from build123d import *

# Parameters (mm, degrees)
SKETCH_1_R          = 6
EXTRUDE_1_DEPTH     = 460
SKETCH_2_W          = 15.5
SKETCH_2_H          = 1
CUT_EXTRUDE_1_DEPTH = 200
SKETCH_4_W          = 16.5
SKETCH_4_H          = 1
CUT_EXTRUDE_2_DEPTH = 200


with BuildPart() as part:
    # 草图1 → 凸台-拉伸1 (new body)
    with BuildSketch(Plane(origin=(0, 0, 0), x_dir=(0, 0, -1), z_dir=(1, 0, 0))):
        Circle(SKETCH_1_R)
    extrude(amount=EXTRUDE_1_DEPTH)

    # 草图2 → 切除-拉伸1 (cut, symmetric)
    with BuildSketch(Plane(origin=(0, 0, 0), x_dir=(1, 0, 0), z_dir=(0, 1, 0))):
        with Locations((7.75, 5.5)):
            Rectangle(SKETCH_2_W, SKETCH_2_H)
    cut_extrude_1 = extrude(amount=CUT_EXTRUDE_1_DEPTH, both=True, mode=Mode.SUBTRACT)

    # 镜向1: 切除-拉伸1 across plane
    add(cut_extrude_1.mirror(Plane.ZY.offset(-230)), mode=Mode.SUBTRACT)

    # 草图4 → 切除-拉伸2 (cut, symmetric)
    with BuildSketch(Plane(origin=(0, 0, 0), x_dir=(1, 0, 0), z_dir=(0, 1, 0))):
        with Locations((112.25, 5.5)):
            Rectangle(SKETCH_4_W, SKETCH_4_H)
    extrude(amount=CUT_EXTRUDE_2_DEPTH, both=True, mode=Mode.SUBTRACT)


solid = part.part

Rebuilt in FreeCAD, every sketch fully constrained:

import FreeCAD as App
import Part
import Sketcher

V = App.Vector
Q = App.Units.Quantity

doc = App.newDocument("Part")
body = doc.addObject("PartDesign::Body", "Body")

sketch1 = body.newObject("Sketcher::SketchObject", "Sketch")
sketch1.AttachmentSupport = (doc.getObject("YZ_Plane"), [""])
sketch1.MapMode = "FlatFace"
sketch1.addGeometry(Part.Circle(V(0, 0, 0), V(0, 0, 1), 6), False)
sketch1.addConstraint(Sketcher.Constraint("Coincident", 0, 3, -1, 1))
sketch1.addConstraint(Sketcher.Constraint("Diameter", 0, Q("12 mm")))
pad1 = body.newObject("PartDesign::Pad", "Pad")
pad1.Profile = sketch1
pad1.Length = 460

sketch2 = body.newObject("Sketcher::SketchObject", "Sketch001")
sketch2.AttachmentSupport = (doc.getObject("XZ_Plane"), [""])
sketch2.MapMode = "FlatFace"
sketch2.addGeometry(Part.LineSegment(V(0, -6, 0), V(0, -5, 0)), False)
sketch2.addGeometry(Part.LineSegment(V(0, -5, 0), V(15.5, -5, 0)), False)
sketch2.addGeometry(Part.LineSegment(V(15.5, -5, 0), V(15.5, -6, 0)), False)
sketch2.addGeometry(Part.LineSegment(V(15.5, -6, 0), V(0, -6, 0)), False)
sketch2.addConstraint(Sketcher.Constraint("Coincident", 0, 2, 1, 1))
sketch2.addConstraint(Sketcher.Constraint("Coincident", 1, 2, 2, 1))
sketch2.addConstraint(Sketcher.Constraint("Coincident", 2, 2, 3, 1))
sketch2.addConstraint(Sketcher.Constraint("Coincident", 3, 2, 0, 1))
sketch2.addConstraint(Sketcher.Constraint("Vertical", 0))
sketch2.addConstraint(Sketcher.Constraint("Horizontal", 1))
sketch2.addConstraint(Sketcher.Constraint("Vertical", 2))
sketch2.addConstraint(Sketcher.Constraint("Horizontal", 3))
sketch2.addConstraint(Sketcher.Constraint("PointOnObject", 0, 2, -2))
sketch2.addConstraint(Sketcher.Constraint("DistanceY", 0, 1, 0, 2, Q("1 mm")))
sketch2.addConstraint(Sketcher.Constraint("DistanceX", 1, 1, 1, 2, Q("15.5 mm")))
sketch2.addConstraint(Sketcher.Constraint("DistanceY", 0, 2, -1, 1, Q("5 mm")))
pocket1 = body.newObject("PartDesign::Pocket", "Pocket")
pocket1.Profile = sketch2
pocket1.Length = 400
pocket1.Midplane = True
doc.recompute()

datumplane = body.newObject("PartDesign::Plane", "DatumPlane")
datumplane.AttachmentSupport = (doc.getObject("YZ_Plane"), [""])
datumplane.MapMode = "FlatFace"
datumplane.AttachmentOffset = App.Placement(V(0, 0, 230), App.Rotation())
mirrored = body.newObject("PartDesign::Mirrored", "Mirrored")
mirrored.Originals = [pocket1]
mirrored.MirrorPlane = (datumplane, [""])
body.Tip = mirrored

sketch3 = body.newObject("Sketcher::SketchObject", "Sketch002")
sketch3.AttachmentSupport = (doc.getObject("XZ_Plane"), [""])
sketch3.MapMode = "FlatFace"
sketch3.addGeometry(Part.LineSegment(V(104, -6, 0), V(104, -5, 0)), False)
sketch3.addGeometry(Part.LineSegment(V(104, -5, 0), V(120.5, -5, 0)), False)
sketch3.addGeometry(Part.LineSegment(V(120.5, -5, 0), V(120.5, -6, 0)), False)
sketch3.addGeometry(Part.LineSegment(V(120.5, -6, 0), V(104, -6, 0)), False)
sketch3.addConstraint(Sketcher.Constraint("Coincident", 0, 2, 1, 1))
sketch3.addConstraint(Sketcher.Constraint("Coincident", 1, 2, 2, 1))
sketch3.addConstraint(Sketcher.Constraint("Coincident", 2, 2, 3, 1))
sketch3.addConstraint(Sketcher.Constraint("Coincident", 3, 2, 0, 1))
sketch3.addConstraint(Sketcher.Constraint("Vertical", 0))
sketch3.addConstraint(Sketcher.Constraint("Horizontal", 1))
sketch3.addConstraint(Sketcher.Constraint("Vertical", 2))
sketch3.addConstraint(Sketcher.Constraint("Horizontal", 3))
sketch3.addConstraint(Sketcher.Constraint("DistanceY", 0, 1, 0, 2, Q("1 mm")))
sketch3.addConstraint(Sketcher.Constraint("DistanceX", 1, 1, 1, 2, Q("16.5 mm")))
sketch3.addConstraint(Sketcher.Constraint("DistanceX", -1, 1, 0, 2, Q("104 mm")))
sketch3.addConstraint(Sketcher.Constraint("DistanceY", 0, 2, -1, 1, Q("5 mm")))
pocket2 = body.newObject("PartDesign::Pocket", "Pocket001")
pocket2.Profile = sketch3
pocket2.Length = 400
pocket2.Midplane = True

doc.recompute()
